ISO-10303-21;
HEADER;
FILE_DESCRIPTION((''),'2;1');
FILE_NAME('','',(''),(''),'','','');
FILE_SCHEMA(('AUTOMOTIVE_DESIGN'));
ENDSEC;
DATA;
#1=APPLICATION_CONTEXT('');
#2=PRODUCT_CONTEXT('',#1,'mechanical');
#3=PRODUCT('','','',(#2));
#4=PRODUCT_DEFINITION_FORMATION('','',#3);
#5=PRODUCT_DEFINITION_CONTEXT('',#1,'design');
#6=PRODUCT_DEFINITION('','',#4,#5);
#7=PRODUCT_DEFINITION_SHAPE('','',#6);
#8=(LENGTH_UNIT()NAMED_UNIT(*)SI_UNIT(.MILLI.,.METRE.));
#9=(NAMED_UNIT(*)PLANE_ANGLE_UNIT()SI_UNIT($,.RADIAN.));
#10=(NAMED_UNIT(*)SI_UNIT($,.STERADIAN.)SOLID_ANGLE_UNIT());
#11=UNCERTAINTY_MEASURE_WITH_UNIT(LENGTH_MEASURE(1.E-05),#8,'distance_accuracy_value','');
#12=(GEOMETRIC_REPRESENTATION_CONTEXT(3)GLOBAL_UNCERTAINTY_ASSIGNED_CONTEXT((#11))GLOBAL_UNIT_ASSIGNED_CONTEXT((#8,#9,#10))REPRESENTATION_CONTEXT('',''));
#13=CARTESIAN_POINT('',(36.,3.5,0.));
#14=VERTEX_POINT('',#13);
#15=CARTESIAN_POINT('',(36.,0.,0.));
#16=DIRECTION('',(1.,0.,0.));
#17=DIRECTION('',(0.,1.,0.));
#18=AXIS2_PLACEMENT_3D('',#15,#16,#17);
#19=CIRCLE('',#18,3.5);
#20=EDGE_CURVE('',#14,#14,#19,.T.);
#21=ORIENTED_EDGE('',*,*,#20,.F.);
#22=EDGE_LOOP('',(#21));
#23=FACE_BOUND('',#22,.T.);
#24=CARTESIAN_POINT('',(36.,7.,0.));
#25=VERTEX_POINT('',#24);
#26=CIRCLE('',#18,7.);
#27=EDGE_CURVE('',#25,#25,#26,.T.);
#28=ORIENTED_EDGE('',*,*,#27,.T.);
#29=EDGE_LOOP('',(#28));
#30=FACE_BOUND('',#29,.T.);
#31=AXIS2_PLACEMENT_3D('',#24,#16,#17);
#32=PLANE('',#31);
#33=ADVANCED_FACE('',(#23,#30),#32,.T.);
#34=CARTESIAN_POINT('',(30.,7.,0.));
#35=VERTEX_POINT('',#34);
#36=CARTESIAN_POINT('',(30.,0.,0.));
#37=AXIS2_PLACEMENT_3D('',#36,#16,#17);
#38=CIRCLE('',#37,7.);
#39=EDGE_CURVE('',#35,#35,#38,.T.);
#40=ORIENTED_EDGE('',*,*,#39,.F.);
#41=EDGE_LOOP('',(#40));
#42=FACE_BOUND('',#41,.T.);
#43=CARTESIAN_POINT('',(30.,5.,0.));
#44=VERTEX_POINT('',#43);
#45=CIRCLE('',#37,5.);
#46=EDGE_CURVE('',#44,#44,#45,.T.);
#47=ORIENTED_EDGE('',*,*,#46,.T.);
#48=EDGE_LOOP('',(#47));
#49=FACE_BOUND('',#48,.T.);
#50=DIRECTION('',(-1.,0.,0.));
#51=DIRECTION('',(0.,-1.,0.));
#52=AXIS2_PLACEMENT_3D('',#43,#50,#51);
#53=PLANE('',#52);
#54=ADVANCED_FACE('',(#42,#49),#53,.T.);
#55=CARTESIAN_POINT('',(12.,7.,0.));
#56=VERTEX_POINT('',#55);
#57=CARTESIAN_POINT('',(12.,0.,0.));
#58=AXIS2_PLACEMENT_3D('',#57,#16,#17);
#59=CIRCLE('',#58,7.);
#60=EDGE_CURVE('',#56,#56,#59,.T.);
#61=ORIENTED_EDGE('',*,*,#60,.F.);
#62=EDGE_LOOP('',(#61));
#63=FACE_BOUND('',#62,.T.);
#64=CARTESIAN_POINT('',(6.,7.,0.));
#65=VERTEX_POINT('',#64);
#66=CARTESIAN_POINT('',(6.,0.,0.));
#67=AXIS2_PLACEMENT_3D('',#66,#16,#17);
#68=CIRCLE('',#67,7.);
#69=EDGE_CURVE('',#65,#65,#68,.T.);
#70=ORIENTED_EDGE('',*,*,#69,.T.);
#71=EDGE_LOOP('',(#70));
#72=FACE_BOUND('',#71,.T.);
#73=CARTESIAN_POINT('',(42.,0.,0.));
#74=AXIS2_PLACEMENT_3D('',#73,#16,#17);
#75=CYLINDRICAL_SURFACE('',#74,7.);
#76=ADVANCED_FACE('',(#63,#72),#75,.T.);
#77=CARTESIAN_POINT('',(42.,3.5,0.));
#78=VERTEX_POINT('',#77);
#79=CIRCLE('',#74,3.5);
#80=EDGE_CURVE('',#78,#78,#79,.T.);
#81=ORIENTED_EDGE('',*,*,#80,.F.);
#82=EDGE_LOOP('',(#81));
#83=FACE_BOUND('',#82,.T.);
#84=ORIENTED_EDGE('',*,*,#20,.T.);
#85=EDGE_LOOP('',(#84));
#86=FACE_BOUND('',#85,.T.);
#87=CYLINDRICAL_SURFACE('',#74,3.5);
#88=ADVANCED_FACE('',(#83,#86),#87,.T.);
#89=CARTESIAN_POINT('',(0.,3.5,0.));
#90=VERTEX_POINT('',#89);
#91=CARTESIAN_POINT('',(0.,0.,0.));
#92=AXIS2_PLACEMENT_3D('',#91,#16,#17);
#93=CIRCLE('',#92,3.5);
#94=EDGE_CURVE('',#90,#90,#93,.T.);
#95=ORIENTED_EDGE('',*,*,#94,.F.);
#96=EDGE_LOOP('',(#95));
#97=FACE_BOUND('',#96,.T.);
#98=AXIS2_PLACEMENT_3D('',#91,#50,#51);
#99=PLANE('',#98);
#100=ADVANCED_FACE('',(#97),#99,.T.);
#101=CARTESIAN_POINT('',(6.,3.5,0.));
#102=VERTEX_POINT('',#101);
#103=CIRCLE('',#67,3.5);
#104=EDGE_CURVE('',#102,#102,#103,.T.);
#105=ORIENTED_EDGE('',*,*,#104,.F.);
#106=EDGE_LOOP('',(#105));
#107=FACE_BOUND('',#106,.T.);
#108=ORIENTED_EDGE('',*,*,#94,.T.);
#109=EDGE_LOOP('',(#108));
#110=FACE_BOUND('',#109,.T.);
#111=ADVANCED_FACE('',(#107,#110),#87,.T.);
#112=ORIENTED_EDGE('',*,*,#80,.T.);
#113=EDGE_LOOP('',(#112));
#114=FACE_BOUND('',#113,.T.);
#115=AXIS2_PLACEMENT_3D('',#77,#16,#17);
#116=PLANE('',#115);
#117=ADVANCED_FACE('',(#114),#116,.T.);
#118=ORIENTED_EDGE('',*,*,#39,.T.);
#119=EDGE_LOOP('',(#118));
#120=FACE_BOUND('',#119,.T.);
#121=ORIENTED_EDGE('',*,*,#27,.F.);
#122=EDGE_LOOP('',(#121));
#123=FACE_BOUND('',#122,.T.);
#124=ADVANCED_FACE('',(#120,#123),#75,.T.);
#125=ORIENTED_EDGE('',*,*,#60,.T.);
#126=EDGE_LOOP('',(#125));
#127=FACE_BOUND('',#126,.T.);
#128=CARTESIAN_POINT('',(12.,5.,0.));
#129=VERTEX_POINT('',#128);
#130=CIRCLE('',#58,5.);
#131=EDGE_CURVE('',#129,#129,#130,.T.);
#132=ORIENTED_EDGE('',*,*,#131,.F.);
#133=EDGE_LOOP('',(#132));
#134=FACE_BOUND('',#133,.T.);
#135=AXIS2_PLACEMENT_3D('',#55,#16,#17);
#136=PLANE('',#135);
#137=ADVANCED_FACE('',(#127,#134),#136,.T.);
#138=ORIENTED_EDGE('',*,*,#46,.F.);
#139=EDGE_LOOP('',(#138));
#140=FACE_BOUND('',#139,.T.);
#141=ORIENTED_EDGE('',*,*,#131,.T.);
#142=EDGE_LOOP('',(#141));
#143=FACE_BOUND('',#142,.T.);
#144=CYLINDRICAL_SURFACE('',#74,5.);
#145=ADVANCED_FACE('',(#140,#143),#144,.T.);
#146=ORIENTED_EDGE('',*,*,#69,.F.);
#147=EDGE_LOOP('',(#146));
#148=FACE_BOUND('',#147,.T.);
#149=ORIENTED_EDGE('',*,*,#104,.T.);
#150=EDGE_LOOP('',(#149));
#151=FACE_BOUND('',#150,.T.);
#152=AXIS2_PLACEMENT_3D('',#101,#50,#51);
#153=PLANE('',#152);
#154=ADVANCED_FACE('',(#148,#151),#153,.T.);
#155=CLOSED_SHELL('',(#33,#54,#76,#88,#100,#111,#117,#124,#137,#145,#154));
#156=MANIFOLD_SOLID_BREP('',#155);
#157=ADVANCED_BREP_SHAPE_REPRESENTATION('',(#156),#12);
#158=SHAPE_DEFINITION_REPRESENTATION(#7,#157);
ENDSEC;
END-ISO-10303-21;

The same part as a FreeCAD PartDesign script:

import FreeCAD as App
import Part
import Sketcher

V = App.Vector
Q = App.Units.Quantity

doc = App.newDocument("Part")
body = doc.addObject("PartDesign::Body", "Body")

# Sketch on XY plane
sketch1 = body.newObject("Sketcher::SketchObject", "Sketch")
sketch1.AttachmentSupport = (doc.getObject("XY_Plane"), [""])
sketch1.MapMode = "FlatFace"
sketch1.addGeometry([
    Part.LineSegment(V(0, 3.5, 0), V(0, 0, 0)),  # 0
    Part.LineSegment(V(0, 0, 0), V(42, 0, 0)),  # 1
    Part.LineSegment(V(42, 0, 0), V(42, 3.5, 0)),  # 2
    Part.LineSegment(V(42, 3.5, 0), V(36, 3.5, 0)),  # 3
    Part.LineSegment(V(36, 3.5, 0), V(36, 7, 0)),  # 4
    Part.LineSegment(V(36, 7, 0), V(30, 7, 0)),  # 5
    Part.LineSegment(V(30, 7, 0), V(30, 5, 0)),  # 6
    Part.LineSegment(V(30, 5, 0), V(12, 5, 0)),  # 7
    Part.LineSegment(V(12, 5, 0), V(12, 7, 0)),  # 8
    Part.LineSegment(V(12, 7, 0), V(6, 7, 0)),  # 9
    Part.LineSegment(V(6, 7, 0), V(6, 3.5, 0)),  # 10
    Part.LineSegment(V(6, 3.5, 0), V(0, 3.5, 0)),  # 11
], False)
sketch1.addConstraint([
    Sketcher.Constraint("Coincident", 0, 2, 1, 1),
    Sketcher.Constraint("Coincident", 1, 2, 2, 1),
    Sketcher.Constraint("Coincident", 2, 2, 3, 1),
    Sketcher.Constraint("Coincident", 3, 2, 4, 1),
    Sketcher.Constraint("Coincident", 4, 2, 5, 1),
    Sketcher.Constraint("Coincident", 5, 2, 6, 1),
    Sketcher.Constraint("Coincident", 6, 2, 7, 1),
    Sketcher.Constraint("Coincident", 7, 2, 8, 1),
    Sketcher.Constraint("Coincident", 8, 2, 9, 1),
    Sketcher.Constraint("Coincident", 9, 2, 10, 1),
    Sketcher.Constraint("Coincident", 10, 2, 11, 1),
    Sketcher.Constraint("Coincident", 11, 2, 0, 1),
    Sketcher.Constraint("Vertical", 0),
    Sketcher.Constraint("Horizontal", 1),
    Sketcher.Constraint("Vertical", 2),
    Sketcher.Constraint("Horizontal", 3),
    Sketcher.Constraint("Vertical", 4),
    Sketcher.Constraint("Horizontal", 5),
    Sketcher.Constraint("Vertical", 6),
    Sketcher.Constraint("Horizontal", 7),
    Sketcher.Constraint("Vertical", 8),
    Sketcher.Constraint("Horizontal", 9),
    Sketcher.Constraint("Vertical", 10),
    Sketcher.Constraint("Horizontal", 11),
    Sketcher.Constraint("Coincident", 0, 2, -1, 1),
    Sketcher.Constraint("Horizontal", 5, 2, 8, 2),
    Sketcher.Constraint("Horizontal", 3, 2, 10, 2),
    Sketcher.Constraint("Equal", 3, 5),
    Sketcher.Constraint("Equal", 5, 9),
    Sketcher.Constraint("Equal", 9, 11),
    Sketcher.Constraint("Equal", 2, 4),
    Sketcher.Constraint("DistanceX", 1, 1, 1, 2, Q("42 mm")),
    Sketcher.Constraint("DistanceX", 3, 2, 3, 1, Q("6 mm")),
    Sketcher.Constraint("DistanceY", 6, 2, 6, 1, Q("2 mm")),
    Sketcher.Constraint("DistanceY", 0, 2, 0, 1, Q("3.5 mm")),
])
revolution = body.newObject("PartDesign::Revolution", "Revolution")
revolution.Profile = sketch1
revolution.ReferenceAxis = (sketch1, ["H_Axis"])
revolution.Angle = 360

doc.recompute()
